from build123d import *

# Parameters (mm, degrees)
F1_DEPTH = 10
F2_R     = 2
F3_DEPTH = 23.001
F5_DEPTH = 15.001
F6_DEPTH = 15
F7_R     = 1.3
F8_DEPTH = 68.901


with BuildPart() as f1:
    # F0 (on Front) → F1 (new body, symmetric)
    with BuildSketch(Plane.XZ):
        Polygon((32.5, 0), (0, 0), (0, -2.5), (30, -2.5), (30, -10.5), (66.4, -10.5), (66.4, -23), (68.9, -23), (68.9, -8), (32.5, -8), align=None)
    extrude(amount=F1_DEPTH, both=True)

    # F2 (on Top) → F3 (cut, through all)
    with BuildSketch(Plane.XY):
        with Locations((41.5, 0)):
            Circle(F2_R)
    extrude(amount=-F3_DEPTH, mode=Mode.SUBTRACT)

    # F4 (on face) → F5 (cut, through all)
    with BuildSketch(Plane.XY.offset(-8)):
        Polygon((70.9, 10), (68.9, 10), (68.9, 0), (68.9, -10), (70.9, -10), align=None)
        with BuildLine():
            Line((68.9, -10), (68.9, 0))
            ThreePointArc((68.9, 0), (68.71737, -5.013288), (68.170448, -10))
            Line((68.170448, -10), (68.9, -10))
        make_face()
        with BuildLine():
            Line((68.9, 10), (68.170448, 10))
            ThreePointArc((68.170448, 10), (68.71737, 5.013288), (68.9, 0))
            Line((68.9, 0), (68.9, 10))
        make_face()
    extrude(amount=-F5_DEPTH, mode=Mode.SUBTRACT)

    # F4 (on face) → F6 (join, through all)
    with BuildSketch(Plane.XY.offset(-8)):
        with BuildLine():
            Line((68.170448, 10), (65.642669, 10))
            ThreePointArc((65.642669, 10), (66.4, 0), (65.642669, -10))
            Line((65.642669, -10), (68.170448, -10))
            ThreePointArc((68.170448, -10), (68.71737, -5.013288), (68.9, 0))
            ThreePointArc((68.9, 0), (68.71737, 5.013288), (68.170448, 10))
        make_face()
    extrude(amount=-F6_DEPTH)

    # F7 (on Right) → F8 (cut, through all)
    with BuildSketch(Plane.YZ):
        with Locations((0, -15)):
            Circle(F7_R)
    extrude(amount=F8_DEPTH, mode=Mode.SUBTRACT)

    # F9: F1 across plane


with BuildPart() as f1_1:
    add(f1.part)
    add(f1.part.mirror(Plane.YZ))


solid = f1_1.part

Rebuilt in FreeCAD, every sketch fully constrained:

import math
import FreeCAD as App
import Part
import Sketcher
from FreeCAD import Vector
Q = App.Units.Quantity

doc = App.newDocument("Part")
body = doc.addObject("PartDesign::Body", "Body")

sketch1 = body.newObject("Sketcher::SketchObject", "Sketch")
sketch1.AttachmentSupport = (doc.getObject("XZ_Plane"), [""])
sketch1.MapMode = "FlatFace"
sketch1.addGeometry(Part.LineSegment(Vector(32.5, 0, 0), Vector(0, 0, 0)), False)
sketch1.addGeometry(Part.LineSegment(Vector(0, 0, 0), Vector(0, -2.5, 0)), False)
sketch1.addGeometry(Part.LineSegment(Vector(0, -2.5, 0), Vector(30, -2.5, 0)), False)
sketch1.addGeometry(Part.LineSegment(Vector(30, -2.5, 0), Vector(30, -10.5, 0)), False)
sketch1.addGeometry(Part.LineSegment(Vector(30, -10.5, 0), Vector(66.4, -10.5, 0)), False)
sketch1.addGeometry(Part.LineSegment(Vector(66.4, -10.5, 0), Vector(66.4, -23, 0)), False)
sketch1.addGeometry(Part.LineSegment(Vector(66.4, -23, 0), Vector(68.9, -23, 0)), False)
sketch1.addGeometry(Part.LineSegment(Vector(68.9, -23, 0), Vector(68.9, -8, 0)), False)
sketch1.addGeometry(Part.LineSegment(Vector(68.9, -8, 0), Vector(32.5, -8, 0)), False)
sketch1.addGeometry(Part.LineSegment(Vector(32.5, -8, 0), Vector(32.5, 0, 0)), False)
sketch1.addConstraint(Sketcher.Constraint("Coincident", 0, 2, 1, 1))
sketch1.addConstraint(Sketcher.Constraint("Coincident", 1, 2, 2, 1))
sketch1.addConstraint(Sketcher.Constraint("Coincident", 2, 2, 3, 1))
sketch1.addConstraint(Sketcher.Constraint("Coincident", 3, 2, 4, 1))
sketch1.addConstraint(Sketcher.Constraint("Coincident", 4, 2, 5, 1))
sketch1.addConstraint(Sketcher.Constraint("Coincident", 5, 2, 6, 1))
sketch1.addConstraint(Sketcher.Constraint("Coincident", 6, 2, 7, 1))
sketch1.addConstraint(Sketcher.Constraint("Coincident", 7, 2, 8, 1))
sketch1.addConstraint(Sketcher.Constraint("Coincident", 8, 2, 9, 1))
sketch1.addConstraint(Sketcher.Constraint("Coincident", 9, 2, 0, 1))
sketch1.addConstraint(Sketcher.Constraint("Horizontal", 0))
sketch1.addConstraint(Sketcher.Constraint("Vertical", 1))
sketch1.addConstraint(Sketcher.Constraint("Horizontal", 2))
sketch1.addConstraint(Sketcher.Constraint("Vertical", 3))
sketch1.addConstraint(Sketcher.Constraint("Horizontal", 4))
sketch1.addConstraint(Sketcher.Constraint("Vertical", 5))
sketch1.addConstraint(Sketcher.Constraint("Horizontal", 6))
sketch1.addConstraint(Sketcher.Constraint("Vertical", 7))
sketch1.addConstraint(Sketcher.Constraint("Horizontal", 8))
sketch1.addConstraint(Sketcher.Constraint("Vertical", 9))
sketch1.addConstraint(Sketcher.Constraint("Coincident", 0, 2, -1, 1))
sketch1.addConstraint(Sketcher.Constraint("Equal", 4, 8))
sketch1.addConstraint(Sketcher.Constraint("Equal", 6, 1))
sketch1.addConstraint(Sketcher.Constraint("Equal", 3, 9))
sketch1.addConstraint(Sketcher.Constraint("DistanceX", 2, 1, 2, 2, Q("30 mm")))
sketch1.addConstraint(Sketcher.Constraint("DistanceY", 3, 2, 3, 1, Q("8 mm")))
sketch1.addConstraint(Sketcher.Constraint("DistanceY", 7, 1, 7, 2, Q("15 mm")))
sketch1.addConstraint(Sketcher.Constraint("DistanceX", 0, 2, 0, 1, Q("32.5 mm")))
sketch1.addConstraint(Sketcher.Constraint("DistanceX", 4, 1, 4, 2, Q("36.4 mm")))
pad1 = body.newObject("PartDesign::Pad", "Pad")
pad1.Profile = sketch1
pad1.Length = 20
pad1.Midplane = True

sketch2 = body.newObject("Sketcher::SketchObject", "Sketch001")
sketch2.AttachmentSupport = (doc.getObject("XY_Plane"), [""])
sketch2.MapMode = "FlatFace"
sketch2.addGeometry(Part.Circle(Vector(41.5, 0, 0), Vector(0, 0, 1), 2), False)
sketch2.addConstraint(Sketcher.Constraint("PointOnObject", 0, 3, -1))
sketch2.addConstraint(Sketcher.Constraint("Diameter", 0, Q("4 mm")))
sketch2.addConstraint(Sketcher.Constraint("DistanceX", -1, 1, 0, 3, Q("41.5 mm")))
pocket1 = body.newObject("PartDesign::Pocket", "Pocket")
pocket1.Profile = sketch2
pocket1.Type = "ThroughAll"

sketch3 = body.newObject("Sketcher::SketchObject", "Sketch002")
sketch3.AttachmentSupport = (doc.getObject("XY_Plane"), [""])
sketch3.MapMode = "FlatFace"
sketch3.AttachmentOffset = App.Placement(Vector(0, 0, -8), App.Rotation())
sketch3.addGeometry(Part.LineSegment(Vector(70.9, 10, 0), Vector(68.170448, 10, 0)), False)
sketch3.addGeometry(Part.ArcOfCircle(Part.Circle(Vector(0.000017, 0, 0), Vector(0, 0, 1), 68.899983), math.radians(0), math.radians(8.345265)), False)
sketch3.addGeometry(Part.ArcOfCircle(Part.Circle(Vector(0.000017, 0, 0), Vector(0, 0, 1), 68.899983), math.radians(-8.345265), math.radians(0)), False)
sketch3.addGeometry(Part.LineSegment(Vector(68.170448, -10, 0), Vector(70.9, -10, 0)), False)
sketch3.addGeometry(Part.LineSegment(Vector(70.9, -10, 0), Vector(70.9, 10, 0)), False)
sketch3.addConstraint(Sketcher.Constraint("Coincident", 0, 2, 1, 2))
sketch3.addConstraint(Sketcher.Constraint("Tangent", 1, 1, 2, 2))
sketch3.addConstraint(Sketcher.Constraint("Coincident", 2, 1, 3, 1))
sketch3.addConstraint(Sketcher.Constraint("Coincident", 3, 2, 4, 1))
sketch3.addConstraint(Sketcher.Constraint("Coincident", 4, 2, 0, 1))
sketch3.addConstraint(Sketcher.Constraint("Horizontal", 0))
sketch3.addConstraint(Sketcher.Constraint("Horizontal", 3))
sketch3.addConstraint(Sketcher.Constraint("Vertical", 4))
sketch3.addConstraint(Sketcher.Constraint("Equal", 1, 2))
sketch3.addConstraint(Sketcher.Constraint("Symmetric", 0, 2, 2, 1, -1))
sketch3.addConstraint(Sketcher.Constraint("PointOnObject", 1, 1, -1))
sketch3.addConstraint(Sketcher.Constraint("DistanceY", 4, 1, 4, 2, Q("20 mm")))
sketch3.addConstraint(Sketcher.Constraint("DistanceX", 1, 1, 3, 2, Q("2 mm")))
sketch3.addConstraint(Sketcher.Constraint("DistanceX", -1, 1, 1, 1, Q("68.9 mm")))
sketch3.addConstraint(Sketcher.Constraint("Radius", 1, Q("68.899983 mm")))
pocket2 = body.newObject("PartDesign::Pocket", "Pocket001")
pocket2.Profile = sketch3
pocket2.Type = "ThroughAll"

sketch4 = body.newObject("Sketcher::SketchObject", "Sketch003")
sketch4.AttachmentSupport = (doc.getObject("XY_Plane"), [""])
sketch4.MapMode = "FlatFace"
sketch4.AttachmentOffset = App.Placement(Vector(0, 0, -8), App.Rotation())
sketch4.addGeometry(Part.LineSegment(Vector(68.170448, 10, 0), Vector(65.642669, 10, 0)), False)
sketch4.addGeometry(Part.ArcOfCircle(Part.Circle(Vector(0.000004, 0, 0), Vector(0, 0, 1), 66.399996), math.radians(-8.661839), math.radians(8.661839)), False)
sketch4.addGeometry(Part.LineSegment(Vector(65.642669, -10, 0), Vector(68.170448, -10, 0)), False)
sketch4.addGeometry(Part.ArcOfCircle(Part.Circle(Vector(0.000017, 0, 0), Vector(0, 0, 1), 68.899983), math.radians(-8.345265), math.radians(0)), False)
sketch4.addGeometry(Part.ArcOfCircle(Part.Circle(Vector(0.000017, 0, 0), Vector(0, 0, 1), 68.899983), math.radians(0), math.radians(8.345265)), False)
sketch4.addConstraint(Sketcher.Constraint("Coincident", 0, 2, 1, 2))
sketch4.addConstraint(Sketcher.Constraint("Coincident", 1, 1, 2, 1))
sketch4.addConstraint(Sketcher.Constraint("Coincident", 2, 2, 3, 1))
sketch4.addConstraint(Sketcher.Constraint("Tangent", 3, 2, 4, 1))
sketch4.addConstraint(Sketcher.Constraint("Coincident", 4, 2, 0, 1))
sketch4.addConstraint(Sketcher.Constraint("Horizontal", 0))
sketch4.addConstraint(Sketcher.Constraint("Horizontal", 2))
sketch4.addConstraint(Sketcher.Constraint("Coincident", 1, 3, -1, 1))
sketch4.addConstraint(Sketcher.Constraint("Equal", 3, 4))
sketch4.addConstraint(Sketcher.Constraint("Symmetric", 2, 2, 4, 2, -1))
sketch4.addConstraint(Sketcher.Constraint("PointOnObject", 3, 2, -1))
sketch4.addConstraint(Sketcher.Constraint("DistanceY", -1, 1, 0, 2, Q("10 mm")))
sketch4.addConstraint(Sketcher.Constraint("DistanceX", -1, 1, 3, 2, Q("68.9 mm")))
sketch4.addConstraint(Sketcher.Constraint("Radius", 1, Q("66.399996 mm")))
sketch4.addConstraint(Sketcher.Constraint("Radius", 3, Q("68.899983 mm")))
pad2 = body.newObject("PartDesign::Pad", "Pad001")
pad2.Profile = sketch4
pad2.Type = "UpToLast"
pad2.Reversed = True

sketch5 = body.newObject("Sketcher::SketchObject", "Sketch004")
sketch5.AttachmentSupport = (doc.getObject("YZ_Plane"), [""])
sketch5.MapMode = "FlatFace"
sketch5.addGeometry(Part.Circle(Vector(0, -15, 0), Vector(0, 0, 1), 1.3), False)
sketch5.addConstraint(Sketcher.Constraint("PointOnObject", 0, 3, -2))
sketch5.addConstraint(Sketcher.Constraint("Diameter", 0, Q("2.6 mm")))
sketch5.addConstraint(Sketcher.Constraint("DistanceY", 0, 3, -1, 1, Q("15 mm")))
pocket3 = body.newObject("PartDesign::Pocket", "Pocket002")
pocket3.Profile = sketch5
pocket3.Type = "ThroughAll"
pocket3.Reversed = True
body2 = doc.addObject("PartDesign::Body", "Body001")
doc.recompute()

body2.BaseFeature = body
doc.recompute()

mirroring = doc.addObject("Part::Mirroring", "Mirroring")
mirroring.Source = body
mirroring.Base = Vector(0, 0, 0)
mirroring.Normal = Vector(1, 0, 0)
body3 = doc.addObject("PartDesign::Body", "Body002")
body3.BaseFeature = mirroring
boolean = body2.newObject("PartDesign::Boolean", "Boolean")
boolean.Type = "Fuse"
boolean.addObjects([body3])
doc.recompute()
mirroring.Visibility = False

doc.recompute()
